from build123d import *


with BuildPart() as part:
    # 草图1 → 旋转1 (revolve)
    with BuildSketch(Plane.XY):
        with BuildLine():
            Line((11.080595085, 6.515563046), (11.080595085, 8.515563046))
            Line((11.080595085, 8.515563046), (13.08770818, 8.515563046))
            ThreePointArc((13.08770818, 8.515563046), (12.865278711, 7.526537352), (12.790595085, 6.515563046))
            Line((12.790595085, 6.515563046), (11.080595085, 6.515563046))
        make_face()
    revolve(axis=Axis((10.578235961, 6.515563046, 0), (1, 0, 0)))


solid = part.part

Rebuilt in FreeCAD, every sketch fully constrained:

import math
import FreeCAD as App
import Part
import Sketcher
Q = App.Units.Quantity

doc = App.newDocument("Part")
body = doc.addObject("PartDesign::Body", "Body")

# Sketch on XY plane
sketch1 = doc.addObject("Sketcher::SketchObject", "Sketch")
body.addObject(sketch1)
sketch1.AttachmentSupport = (doc.XY_Plane, [""])
sketch1.MapMode = "FlatFace"
sketch1.addGeometry([
    Part.LineSegment(App.Vector(11.1, 8.5, 0), App.Vector(11.1, 6.5, 0)),
    Part.LineSegment(App.Vector(11.1, 6.5, 0), App.Vector(12.8, 6.5, 0)),
    Part.ArcOfCircle(Part.Circle(App.Vector(19.7, 6.5, 0), App.Vector(0, 0, 1), 6.9), math.radians(163.1), math.radians(180)),
    Part.LineSegment(App.Vector(13.1, 8.5, 0), App.Vector(11.1, 8.5, 0)),
], False)
sketch1.addGeometry(Part.LineSegment(App.Vector(11.1, 6.5, 0), App.Vector(19.7, 6.5, 0)), True)  # axis
sketch1.addConstraint([
    Sketcher.Constraint("Coincident", 0, 2, 1, 1),
    Sketcher.Constraint("Coincident", 1, 2, 2, 2),
    Sketcher.Constraint("Coincident", 2, 1, 3, 1),
    Sketcher.Constraint("Coincident", 3, 2, 0, 1),
    Sketcher.Constraint("Vertical", 0),
    Sketcher.Constraint("Horizontal", 1),
    Sketcher.Constraint("Horizontal", 3),
    Sketcher.Constraint("Horizontal", 4),
    Sketcher.Constraint("Coincident", 4, 1, 0, 2),
    Sketcher.Constraint("Coincident", 4, 2, 2, 3),
    Sketcher.Constraint("DistanceY", 0, 2, 0, 1, Q("2 mm")),
    Sketcher.Constraint("Radius", 2, Q("6.88 mm")),
    Sketcher.Constraint("DistanceX", 1, 1, 1, 2, Q("1.71 mm")),
    Sketcher.Constraint("DistanceX", -1, 1, 2, 1, Q("13.087708 mm")),
    Sketcher.Constraint("DistanceY", -1, 1, 2, 3, Q("6.515563 mm")),
])
revolution = doc.addObject("PartDesign::Revolution", "Revolution")
body.addObject(revolution)
revolution.Profile = sketch1
revolution.ReferenceAxis = (sketch1, ["Axis0"])
revolution.Angle = 360

doc.recompute()
